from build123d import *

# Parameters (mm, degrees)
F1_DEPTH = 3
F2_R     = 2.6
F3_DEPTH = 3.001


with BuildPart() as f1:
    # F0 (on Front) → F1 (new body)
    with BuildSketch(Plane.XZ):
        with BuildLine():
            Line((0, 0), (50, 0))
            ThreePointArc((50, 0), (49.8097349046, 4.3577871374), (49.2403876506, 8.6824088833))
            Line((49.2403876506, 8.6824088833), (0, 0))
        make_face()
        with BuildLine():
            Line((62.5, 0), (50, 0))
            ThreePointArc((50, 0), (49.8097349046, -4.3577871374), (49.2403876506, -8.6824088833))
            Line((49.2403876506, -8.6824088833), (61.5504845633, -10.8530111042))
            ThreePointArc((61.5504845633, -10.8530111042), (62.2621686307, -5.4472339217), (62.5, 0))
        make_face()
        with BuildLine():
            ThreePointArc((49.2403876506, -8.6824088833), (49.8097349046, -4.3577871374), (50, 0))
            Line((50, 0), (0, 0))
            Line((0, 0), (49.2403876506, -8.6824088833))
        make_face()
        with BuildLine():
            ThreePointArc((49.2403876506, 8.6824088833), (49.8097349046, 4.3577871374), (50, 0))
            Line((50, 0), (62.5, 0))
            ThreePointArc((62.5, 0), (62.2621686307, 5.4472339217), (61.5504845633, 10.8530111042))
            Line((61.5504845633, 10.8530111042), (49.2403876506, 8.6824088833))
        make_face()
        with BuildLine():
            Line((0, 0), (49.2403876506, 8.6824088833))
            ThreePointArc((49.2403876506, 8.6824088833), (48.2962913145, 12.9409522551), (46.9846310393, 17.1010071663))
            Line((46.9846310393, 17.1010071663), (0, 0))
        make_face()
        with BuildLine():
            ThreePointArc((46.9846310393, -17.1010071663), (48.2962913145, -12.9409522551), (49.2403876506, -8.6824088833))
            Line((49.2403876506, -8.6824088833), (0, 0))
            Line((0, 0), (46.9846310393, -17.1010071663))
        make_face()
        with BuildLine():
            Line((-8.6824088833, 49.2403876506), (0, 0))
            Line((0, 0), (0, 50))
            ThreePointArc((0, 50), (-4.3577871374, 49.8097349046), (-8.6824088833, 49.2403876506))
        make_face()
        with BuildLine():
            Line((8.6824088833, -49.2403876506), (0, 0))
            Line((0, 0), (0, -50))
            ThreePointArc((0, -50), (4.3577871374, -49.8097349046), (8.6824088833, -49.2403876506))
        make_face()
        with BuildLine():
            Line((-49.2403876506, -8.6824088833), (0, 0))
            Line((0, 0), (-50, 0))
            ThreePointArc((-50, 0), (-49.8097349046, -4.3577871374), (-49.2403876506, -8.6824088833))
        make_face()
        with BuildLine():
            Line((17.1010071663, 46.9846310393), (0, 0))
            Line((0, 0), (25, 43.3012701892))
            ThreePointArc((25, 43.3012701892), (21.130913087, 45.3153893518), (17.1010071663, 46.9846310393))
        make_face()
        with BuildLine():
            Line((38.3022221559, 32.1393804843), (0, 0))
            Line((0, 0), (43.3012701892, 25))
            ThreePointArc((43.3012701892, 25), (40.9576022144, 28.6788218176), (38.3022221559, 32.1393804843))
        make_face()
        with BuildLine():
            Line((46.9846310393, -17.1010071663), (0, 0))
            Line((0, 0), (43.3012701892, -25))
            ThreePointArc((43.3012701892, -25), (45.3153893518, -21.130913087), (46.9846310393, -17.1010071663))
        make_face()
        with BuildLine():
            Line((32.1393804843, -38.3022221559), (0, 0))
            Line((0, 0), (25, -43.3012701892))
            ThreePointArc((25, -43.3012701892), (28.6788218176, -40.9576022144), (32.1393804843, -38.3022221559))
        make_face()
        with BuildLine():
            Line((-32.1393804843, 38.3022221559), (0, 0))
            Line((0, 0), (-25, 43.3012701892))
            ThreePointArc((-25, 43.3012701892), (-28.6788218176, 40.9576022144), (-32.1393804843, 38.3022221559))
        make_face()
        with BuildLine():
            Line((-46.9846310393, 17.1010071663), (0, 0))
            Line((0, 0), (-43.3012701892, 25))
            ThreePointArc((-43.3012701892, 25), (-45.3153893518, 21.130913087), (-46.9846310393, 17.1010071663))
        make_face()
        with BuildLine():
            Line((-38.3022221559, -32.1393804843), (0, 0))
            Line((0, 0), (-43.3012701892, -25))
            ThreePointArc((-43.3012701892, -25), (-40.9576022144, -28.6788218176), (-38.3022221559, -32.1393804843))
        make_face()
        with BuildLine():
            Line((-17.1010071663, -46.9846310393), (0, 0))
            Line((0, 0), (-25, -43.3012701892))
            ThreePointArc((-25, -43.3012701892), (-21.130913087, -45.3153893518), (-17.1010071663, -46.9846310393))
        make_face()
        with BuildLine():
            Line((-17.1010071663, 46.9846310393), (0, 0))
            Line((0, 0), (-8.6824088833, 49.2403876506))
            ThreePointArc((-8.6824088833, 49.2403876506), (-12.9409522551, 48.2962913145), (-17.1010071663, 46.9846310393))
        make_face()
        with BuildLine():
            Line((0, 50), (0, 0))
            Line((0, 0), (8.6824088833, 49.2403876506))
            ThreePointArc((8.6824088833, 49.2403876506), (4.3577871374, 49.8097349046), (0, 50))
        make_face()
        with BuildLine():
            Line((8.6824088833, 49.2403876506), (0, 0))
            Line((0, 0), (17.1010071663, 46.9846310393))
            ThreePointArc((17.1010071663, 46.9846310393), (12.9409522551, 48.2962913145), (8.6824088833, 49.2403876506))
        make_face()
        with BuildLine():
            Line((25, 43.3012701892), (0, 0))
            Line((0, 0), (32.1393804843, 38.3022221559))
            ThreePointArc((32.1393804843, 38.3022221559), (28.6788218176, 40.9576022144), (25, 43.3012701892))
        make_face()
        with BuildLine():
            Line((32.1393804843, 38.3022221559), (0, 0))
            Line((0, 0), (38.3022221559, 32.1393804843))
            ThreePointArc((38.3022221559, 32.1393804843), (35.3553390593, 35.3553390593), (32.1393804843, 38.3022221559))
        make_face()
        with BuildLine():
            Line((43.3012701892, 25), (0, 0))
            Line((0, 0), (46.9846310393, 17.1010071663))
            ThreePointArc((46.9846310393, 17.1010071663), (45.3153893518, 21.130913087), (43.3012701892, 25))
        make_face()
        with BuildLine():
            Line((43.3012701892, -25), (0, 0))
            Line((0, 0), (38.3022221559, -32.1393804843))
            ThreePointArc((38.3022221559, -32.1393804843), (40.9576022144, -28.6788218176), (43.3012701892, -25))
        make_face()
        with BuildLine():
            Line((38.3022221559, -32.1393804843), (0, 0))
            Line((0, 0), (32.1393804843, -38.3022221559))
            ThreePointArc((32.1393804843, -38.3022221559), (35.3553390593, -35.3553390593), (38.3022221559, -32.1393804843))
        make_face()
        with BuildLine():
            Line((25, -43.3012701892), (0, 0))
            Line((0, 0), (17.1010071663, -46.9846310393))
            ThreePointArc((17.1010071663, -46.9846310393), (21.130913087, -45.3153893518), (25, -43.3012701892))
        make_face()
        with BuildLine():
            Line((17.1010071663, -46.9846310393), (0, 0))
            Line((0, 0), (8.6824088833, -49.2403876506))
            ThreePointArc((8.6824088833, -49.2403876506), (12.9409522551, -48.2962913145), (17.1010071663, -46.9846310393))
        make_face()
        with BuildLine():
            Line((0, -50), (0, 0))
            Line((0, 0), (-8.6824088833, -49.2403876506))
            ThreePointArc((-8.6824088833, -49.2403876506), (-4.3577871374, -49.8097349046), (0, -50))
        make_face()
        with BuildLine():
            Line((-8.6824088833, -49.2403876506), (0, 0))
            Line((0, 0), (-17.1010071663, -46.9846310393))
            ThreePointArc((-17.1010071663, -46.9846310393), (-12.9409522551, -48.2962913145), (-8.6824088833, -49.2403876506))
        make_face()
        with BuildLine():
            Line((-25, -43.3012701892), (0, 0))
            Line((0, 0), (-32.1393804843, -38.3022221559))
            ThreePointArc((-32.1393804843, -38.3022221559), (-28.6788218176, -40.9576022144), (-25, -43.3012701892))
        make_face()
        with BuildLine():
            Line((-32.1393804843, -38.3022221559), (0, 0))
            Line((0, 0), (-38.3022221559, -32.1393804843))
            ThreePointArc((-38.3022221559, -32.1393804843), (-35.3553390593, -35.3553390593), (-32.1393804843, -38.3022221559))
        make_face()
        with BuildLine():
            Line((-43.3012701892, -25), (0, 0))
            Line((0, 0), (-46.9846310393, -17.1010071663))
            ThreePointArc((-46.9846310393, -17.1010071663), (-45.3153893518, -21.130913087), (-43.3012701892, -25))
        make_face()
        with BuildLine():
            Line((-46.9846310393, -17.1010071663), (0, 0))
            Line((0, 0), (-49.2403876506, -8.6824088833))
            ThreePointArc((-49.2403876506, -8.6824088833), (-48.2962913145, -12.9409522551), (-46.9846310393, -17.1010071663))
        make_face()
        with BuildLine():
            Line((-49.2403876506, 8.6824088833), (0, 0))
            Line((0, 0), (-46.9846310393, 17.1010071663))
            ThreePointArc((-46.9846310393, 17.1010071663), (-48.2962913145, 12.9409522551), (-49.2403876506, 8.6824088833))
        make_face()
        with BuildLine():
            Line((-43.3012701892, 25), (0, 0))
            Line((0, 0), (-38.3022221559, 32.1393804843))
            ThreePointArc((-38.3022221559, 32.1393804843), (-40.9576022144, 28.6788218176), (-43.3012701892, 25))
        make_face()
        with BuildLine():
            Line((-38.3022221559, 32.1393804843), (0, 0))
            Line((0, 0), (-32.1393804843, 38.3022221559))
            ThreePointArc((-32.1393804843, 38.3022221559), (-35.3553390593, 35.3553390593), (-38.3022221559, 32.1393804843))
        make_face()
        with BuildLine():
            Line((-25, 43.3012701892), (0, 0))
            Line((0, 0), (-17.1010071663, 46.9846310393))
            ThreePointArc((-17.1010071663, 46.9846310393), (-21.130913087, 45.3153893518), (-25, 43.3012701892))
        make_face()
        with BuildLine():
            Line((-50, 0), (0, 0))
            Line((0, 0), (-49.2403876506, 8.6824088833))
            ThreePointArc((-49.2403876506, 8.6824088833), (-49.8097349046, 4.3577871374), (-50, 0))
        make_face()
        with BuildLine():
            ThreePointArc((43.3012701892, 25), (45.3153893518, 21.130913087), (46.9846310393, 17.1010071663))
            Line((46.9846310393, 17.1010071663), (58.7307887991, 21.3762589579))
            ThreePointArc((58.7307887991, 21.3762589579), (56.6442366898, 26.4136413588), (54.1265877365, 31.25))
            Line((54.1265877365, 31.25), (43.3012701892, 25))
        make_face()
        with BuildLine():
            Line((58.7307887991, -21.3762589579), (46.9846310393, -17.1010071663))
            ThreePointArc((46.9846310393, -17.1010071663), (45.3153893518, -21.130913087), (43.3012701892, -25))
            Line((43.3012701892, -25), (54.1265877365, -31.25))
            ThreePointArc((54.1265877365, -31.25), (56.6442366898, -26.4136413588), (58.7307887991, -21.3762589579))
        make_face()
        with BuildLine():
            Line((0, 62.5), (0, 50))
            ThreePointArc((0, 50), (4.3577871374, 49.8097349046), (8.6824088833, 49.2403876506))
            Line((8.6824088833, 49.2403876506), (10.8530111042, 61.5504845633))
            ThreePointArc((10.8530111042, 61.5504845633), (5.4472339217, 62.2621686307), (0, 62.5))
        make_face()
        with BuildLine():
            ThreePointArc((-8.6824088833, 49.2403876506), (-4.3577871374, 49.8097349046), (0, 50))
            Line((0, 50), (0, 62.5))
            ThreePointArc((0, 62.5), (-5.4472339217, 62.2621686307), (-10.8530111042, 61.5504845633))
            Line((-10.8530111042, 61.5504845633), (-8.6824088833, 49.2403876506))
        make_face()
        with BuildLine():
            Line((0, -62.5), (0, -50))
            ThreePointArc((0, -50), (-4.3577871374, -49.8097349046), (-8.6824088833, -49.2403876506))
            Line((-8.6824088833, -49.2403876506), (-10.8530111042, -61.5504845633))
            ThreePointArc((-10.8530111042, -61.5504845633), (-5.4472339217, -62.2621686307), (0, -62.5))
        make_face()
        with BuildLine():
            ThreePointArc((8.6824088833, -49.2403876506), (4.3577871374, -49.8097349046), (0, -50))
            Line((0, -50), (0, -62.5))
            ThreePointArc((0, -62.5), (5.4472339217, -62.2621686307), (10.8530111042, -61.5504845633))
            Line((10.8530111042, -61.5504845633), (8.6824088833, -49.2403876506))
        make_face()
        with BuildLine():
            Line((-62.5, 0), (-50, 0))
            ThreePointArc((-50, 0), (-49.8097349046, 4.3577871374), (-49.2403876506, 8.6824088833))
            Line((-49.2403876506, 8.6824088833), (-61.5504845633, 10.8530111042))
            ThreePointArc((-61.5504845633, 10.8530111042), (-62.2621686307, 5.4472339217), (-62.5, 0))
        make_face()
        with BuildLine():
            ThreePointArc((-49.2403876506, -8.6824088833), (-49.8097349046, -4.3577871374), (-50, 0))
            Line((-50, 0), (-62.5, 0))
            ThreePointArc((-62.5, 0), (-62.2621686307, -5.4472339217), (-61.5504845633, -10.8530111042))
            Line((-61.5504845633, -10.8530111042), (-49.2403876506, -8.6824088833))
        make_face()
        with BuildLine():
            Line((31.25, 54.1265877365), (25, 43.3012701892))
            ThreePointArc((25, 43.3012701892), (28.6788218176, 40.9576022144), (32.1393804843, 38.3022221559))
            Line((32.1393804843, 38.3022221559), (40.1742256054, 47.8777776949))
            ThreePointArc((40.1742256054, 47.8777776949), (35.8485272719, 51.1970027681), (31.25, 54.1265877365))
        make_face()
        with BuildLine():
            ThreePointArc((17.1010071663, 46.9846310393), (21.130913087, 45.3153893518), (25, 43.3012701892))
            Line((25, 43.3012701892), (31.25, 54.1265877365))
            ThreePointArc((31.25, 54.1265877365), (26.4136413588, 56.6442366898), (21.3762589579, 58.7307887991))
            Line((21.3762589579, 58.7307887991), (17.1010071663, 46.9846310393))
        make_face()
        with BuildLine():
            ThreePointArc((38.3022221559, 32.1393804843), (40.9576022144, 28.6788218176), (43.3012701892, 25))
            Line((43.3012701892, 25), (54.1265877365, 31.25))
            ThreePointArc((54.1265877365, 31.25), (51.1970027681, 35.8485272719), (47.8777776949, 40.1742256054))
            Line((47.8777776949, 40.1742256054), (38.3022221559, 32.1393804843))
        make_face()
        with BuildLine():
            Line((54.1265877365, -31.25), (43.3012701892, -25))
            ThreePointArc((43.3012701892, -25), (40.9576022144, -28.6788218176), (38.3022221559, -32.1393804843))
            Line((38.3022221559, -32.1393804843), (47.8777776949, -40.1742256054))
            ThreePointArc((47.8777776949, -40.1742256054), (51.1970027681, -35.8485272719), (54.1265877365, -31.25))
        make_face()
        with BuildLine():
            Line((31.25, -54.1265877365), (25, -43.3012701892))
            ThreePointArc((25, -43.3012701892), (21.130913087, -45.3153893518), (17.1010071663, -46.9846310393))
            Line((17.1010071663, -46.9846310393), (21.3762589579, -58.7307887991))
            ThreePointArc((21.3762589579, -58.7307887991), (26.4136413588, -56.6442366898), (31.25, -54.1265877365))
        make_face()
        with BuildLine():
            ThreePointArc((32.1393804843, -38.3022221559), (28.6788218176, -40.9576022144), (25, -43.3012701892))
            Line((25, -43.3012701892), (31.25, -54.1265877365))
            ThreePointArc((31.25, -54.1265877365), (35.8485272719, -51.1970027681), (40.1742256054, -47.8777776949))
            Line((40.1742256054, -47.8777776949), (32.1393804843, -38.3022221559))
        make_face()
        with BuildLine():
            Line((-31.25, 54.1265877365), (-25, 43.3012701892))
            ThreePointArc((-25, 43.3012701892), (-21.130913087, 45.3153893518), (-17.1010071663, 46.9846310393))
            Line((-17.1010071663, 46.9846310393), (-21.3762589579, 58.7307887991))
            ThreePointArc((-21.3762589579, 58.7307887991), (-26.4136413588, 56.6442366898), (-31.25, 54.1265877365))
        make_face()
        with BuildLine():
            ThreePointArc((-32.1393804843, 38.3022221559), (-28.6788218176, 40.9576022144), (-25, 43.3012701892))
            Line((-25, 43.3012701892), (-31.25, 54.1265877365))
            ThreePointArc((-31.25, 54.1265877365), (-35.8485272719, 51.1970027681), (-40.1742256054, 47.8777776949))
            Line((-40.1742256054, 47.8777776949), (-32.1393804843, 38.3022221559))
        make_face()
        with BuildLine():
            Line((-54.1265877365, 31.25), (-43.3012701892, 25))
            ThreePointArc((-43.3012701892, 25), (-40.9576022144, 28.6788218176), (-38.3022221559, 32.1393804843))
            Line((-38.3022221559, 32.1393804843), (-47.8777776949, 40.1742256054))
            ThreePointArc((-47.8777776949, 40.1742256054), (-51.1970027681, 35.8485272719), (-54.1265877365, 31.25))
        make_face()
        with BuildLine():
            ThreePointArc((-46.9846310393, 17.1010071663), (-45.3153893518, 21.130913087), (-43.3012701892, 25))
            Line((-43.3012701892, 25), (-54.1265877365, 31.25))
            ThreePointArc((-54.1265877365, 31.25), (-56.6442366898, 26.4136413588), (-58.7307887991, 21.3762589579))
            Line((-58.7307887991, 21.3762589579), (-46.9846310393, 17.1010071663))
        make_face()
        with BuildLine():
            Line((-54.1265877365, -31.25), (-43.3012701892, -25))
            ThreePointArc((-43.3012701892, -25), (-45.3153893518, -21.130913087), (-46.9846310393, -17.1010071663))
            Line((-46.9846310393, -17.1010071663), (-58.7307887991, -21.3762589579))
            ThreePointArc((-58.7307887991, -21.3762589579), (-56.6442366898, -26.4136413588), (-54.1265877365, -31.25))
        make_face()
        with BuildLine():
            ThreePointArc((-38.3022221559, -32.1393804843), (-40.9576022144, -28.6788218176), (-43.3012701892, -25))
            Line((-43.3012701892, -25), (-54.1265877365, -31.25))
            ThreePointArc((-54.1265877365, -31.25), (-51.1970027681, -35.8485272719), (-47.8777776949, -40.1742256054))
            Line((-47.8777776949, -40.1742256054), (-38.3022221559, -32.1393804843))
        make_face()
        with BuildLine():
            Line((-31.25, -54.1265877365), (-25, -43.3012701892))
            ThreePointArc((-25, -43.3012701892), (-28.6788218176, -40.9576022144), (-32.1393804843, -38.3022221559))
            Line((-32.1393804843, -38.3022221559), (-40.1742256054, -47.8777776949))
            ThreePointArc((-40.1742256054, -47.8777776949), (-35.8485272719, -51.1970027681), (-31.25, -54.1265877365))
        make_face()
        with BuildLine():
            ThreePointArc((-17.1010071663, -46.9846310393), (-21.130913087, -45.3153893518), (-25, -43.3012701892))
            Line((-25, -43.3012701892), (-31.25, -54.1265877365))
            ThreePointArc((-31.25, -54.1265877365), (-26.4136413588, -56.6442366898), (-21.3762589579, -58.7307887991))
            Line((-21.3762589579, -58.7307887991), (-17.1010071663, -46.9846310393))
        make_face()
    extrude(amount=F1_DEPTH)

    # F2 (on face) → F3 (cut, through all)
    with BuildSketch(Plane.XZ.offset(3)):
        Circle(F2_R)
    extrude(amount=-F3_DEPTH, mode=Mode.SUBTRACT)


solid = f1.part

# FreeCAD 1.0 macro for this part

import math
import FreeCAD as App
import Part
import Sketcher
from FreeCAD import Vector
Q = App.Units.Quantity

doc = App.newDocument("Part")
params = doc.addObject("Spreadsheet::Sheet", "Params")
for row, (alias, value) in enumerate([
    ("sketch1_radius", "50 mm"),
    ("sketch1_radius2", "62.5 mm"),
    ("pad1_length", "3 mm"),
    ("sketch2_diameter", "5.2 mm"),
], start=1):
    params.set(f"A{row}", alias)
    params.set(f"B{row}", "=" + value)
    params.setAlias(f"B{row}", alias)

body = doc.addObject("PartDesign::Body", "Body")

# Sketch on XZ plane
sketch1 = body.newObject("Sketcher::SketchObject", "Sketch")
sketch1.AttachmentSupport = (doc.getObject("XZ_Plane"), [""])
sketch1.MapMode = "FlatFace"
sketch1.addGeometry(Part.LineSegment(Vector(49, -9, 0), Vector(62, -11, 0)), False)
sketch1.addGeometry(Part.ArcOfCircle(Part.Circle(Vector(0, 0, 0), Vector(0, 0, 1), 63), math.radians(-10), math.radians(0)), False)
sketch1.addGeometry(Part.ArcOfCircle(Part.Circle(Vector(0, 0, 0), Vector(0, 0, 1), 63), math.radians(0), math.radians(10)), False)
sketch1.addGeometry(Part.LineSegment(Vector(62, 11, 0), Vector(49, 9, 0)), False)
sketch1.addGeometry(Part.ArcOfCircle(Part.Circle(Vector(0, 0, 0), Vector(0, 0, 1), 50), math.radians(10), math.radians(20)), False)
sketch1.addGeometry(Part.LineSegment(Vector(47, 17, 0), Vector(59, 21, 0)), False)
sketch1.addGeometry(Part.ArcOfCircle(Part.Circle(Vector(0, 0, 0), Vector(0, 0, 1), 62), math.radians(20), math.radians(30)), False)
sketch1.addGeometry(Part.ArcOfCircle(Part.Circle(Vector(0, 0, 0), Vector(0, 0, 1), 62), math.radians(30), math.radians(40)), False)
sketch1.addGeometry(Part.LineSegment(Vector(48, 40, 0), Vector(38, 32, 0)), False)
sketch1.addGeometry(Part.ArcOfCircle(Part.Circle(Vector(0, 0, 0), Vector(0, 0, 1), 50), math.radians(40), math.radians(50)), False)
sketch1.addGeometry(Part.LineSegment(Vector(32, 38, 0), Vector(40, 48, 0)), False)
sketch1.addGeometry(Part.ArcOfCircle(Part.Circle(Vector(0, 0, 0), Vector(0, 0, 1), 62), math.radians(50), math.radians(60)), False)
sketch1.addGeometry(Part.ArcOfCircle(Part.Circle(Vector(0, 0, 0), Vector(0, 0, 1), 62), math.radians(60), math.radians(70)), False)
sketch1.addGeometry(Part.LineSegment(Vector(21, 59, 0), Vector(17, 47, 0)), False)
sketch1.addGeometry(Part.ArcOfCircle(Part.Circle(Vector(0, 0, 0), Vector(0, 0, 1), 50), math.radians(70), math.radians(80)), False)
sketch1.addGeometry(Part.LineSegment(Vector(9, 49, 0), Vector(11, 62, 0)), False)
sketch1.addGeometry(Part.ArcOfCircle(Part.Circle(Vector(0, 0, 0), Vector(0, 0, 1), 63), math.radians(80), math.radians(90)), False)
sketch1.addGeometry(Part.ArcOfCircle(Part.Circle(Vector(0, 0, 0), Vector(0, 0, 1), 63), math.radians(90), math.radians(100)), False)
sketch1.addGeometry(Part.LineSegment(Vector(-11, 62, 0), Vector(-9, 49, 0)), False)
sketch1.addGeometry(Part.ArcOfCircle(Part.Circle(Vector(0, 0, 0), Vector(0, 0, 1), 50), math.radians(100), math.radians(110)), False)
sketch1.addGeometry(Part.LineSegment(Vector(-17, 47, 0), Vector(-21, 59, 0)), False)
sketch1.addGeometry(Part.ArcOfCircle(Part.Circle(Vector(0, 0, 0), Vector(0, 0, 1), 62), math.radians(110), math.radians(120)), False)
sketch1.addGeometry(Part.ArcOfCircle(Part.Circle(Vector(0, 0, 0), Vector(0, 0, 1), 62), math.radians(120), math.radians(130)), False)
sketch1.addGeometry(Part.LineSegment(Vector(-40, 48, 0), Vector(-32, 38, 0)), False)
sketch1.addGeometry(Part.ArcOfCircle(Part.Circle(Vector(0, 0, 0), Vector(0, 0, 1), 50), math.radians(130), math.radians(140)), False)
sketch1.addGeometry(Part.LineSegment(Vector(-38, 32, 0), Vector(-48, 40, 0)), False)
sketch1.addGeometry(Part.ArcOfCircle(Part.Circle(Vector(0, 0, 0), Vector(0, 0, 1), 62), math.radians(140), math.radians(150)), False)
sketch1.addGeometry(Part.ArcOfCircle(Part.Circle(Vector(0, 0, 0), Vector(0, 0, 1), 62), math.radians(150), math.radians(160)), False)
sketch1.addGeometry(Part.LineSegment(Vector(-59, 21, 0), Vector(-47, 17, 0)), False)
sketch1.addGeometry(Part.ArcOfCircle(Part.Circle(Vector(0, 0, 0), Vector(0, 0, 1), 50), math.radians(160), math.radians(170)), False)
sketch1.addGeometry(Part.LineSegment(Vector(-49, 9, 0), Vector(-62, 11, 0)), False)
sketch1.addGeometry(Part.ArcOfCircle(Part.Circle(Vector(0, 0, 0), Vector(0, 0, 1), 63), math.radians(170), math.radians(180)), False)
sketch1.addGeometry(Part.ArcOfCircle(Part.Circle(Vector(0, 0, 0), Vector(0, 0, 1), 63), math.radians(-180), math.radians(-170)), False)
sketch1.addGeometry(Part.LineSegment(Vector(-62, -11, 0), Vector(-49, -9, 0)), False)
sketch1.addGeometry(Part.ArcOfCircle(Part.Circle(Vector(0, 0, 0), Vector(0, 0, 1), 50), math.radians(-170), math.radians(-160)), False)
sketch1.addGeometry(Part.LineSegment(Vector(-47, -17, 0), Vector(-59, -21, 0)), False)
sketch1.addGeometry(Part.ArcOfCircle(Part.Circle(Vector(0, 0, 0), Vector(0, 0, 1), 62), math.radians(-160), math.radians(-150)), False)
sketch1.addGeometry(Part.ArcOfCircle(Part.Circle(Vector(0, 0, 0), Vector(0, 0, 1), 62), math.radians(-150), math.radians(-140)), False)
sketch1.addGeometry(Part.LineSegment(Vector(-48, -40, 0), Vector(-38, -32, 0)), False)
sketch1.addGeometry(Part.ArcOfCircle(Part.Circle(Vector(0, 0, 0), Vector(0, 0, 1), 50), math.radians(-140), math.radians(-130)), False)
sketch1.addGeometry(Part.LineSegment(Vector(-32, -38, 0), Vector(-40, -48, 0)), False)
sketch1.addGeometry(Part.ArcOfCircle(Part.Circle(Vector(0, 0, 0), Vector(0, 0, 1), 62), math.radians(-130), math.radians(-120)), False)
sketch1.addGeometry(Part.ArcOfCircle(Part.Circle(Vector(0, 0, 0), Vector(0, 0, 1), 62), math.radians(-120), math.radians(-110)), False)
sketch1.addGeometry(Part.LineSegment(Vector(-21, -59, 0), Vector(-17, -47, 0)), False)
sketch1.addGeometry(Part.ArcOfCircle(Part.Circle(Vector(0, 0, 0), Vector(0, 0, 1), 50), math.radians(-110), math.radians(-100)), False)
sketch1.addGeometry(Part.LineSegment(Vector(-9, -49, 0), Vector(-11, -62, 0)), False)
sketch1.addGeometry(Part.ArcOfCircle(Part.Circle(Vector(0, 0, 0), Vector(0, 0, 1), 63), math.radians(-100), math.radians(-90)), False)
sketch1.addGeometry(Part.ArcOfCircle(Part.Circle(Vector(0, 0, 0), Vector(0, 0, 1), 63), math.radians(-90), math.radians(-80)), False)
sketch1.addGeometry(Part.LineSegment(Vector(11, -62, 0), Vector(9, -49, 0)), False)
sketch1.addGeometry(Part.ArcOfCircle(Part.Circle(Vector(0, 0, 0), Vector(0, 0, 1), 50), math.radians(-80), math.radians(-70)), False)
sketch1.addGeometry(Part.LineSegment(Vector(17, -47, 0), Vector(21, -59, 0)), False)
sketch1.addGeometry(Part.ArcOfCircle(Part.Circle(Vector(0, 0, 0), Vector(0, 0, 1), 62), math.radians(-70), math.radians(-60)), False)
sketch1.addGeometry(Part.ArcOfCircle(Part.Circle(Vector(0, 0, 0), Vector(0, 0, 1), 62), math.radians(-60), math.radians(-50)), False)
sketch1.addGeometry(Part.LineSegment(Vector(40, -48, 0), Vector(32, -38, 0)), False)
sketch1.addGeometry(Part.ArcOfCircle(Part.Circle(Vector(0, 0, 0), Vector(0, 0, 1), 50), math.radians(-50), math.radians(-40)), False)
sketch1.addGeometry(Part.LineSegment(Vector(38, -32, 0), Vector(48, -40, 0)), False)
sketch1.addGeometry(Part.ArcOfCircle(Part.Circle(Vector(0, 0, 0), Vector(0, 0, 1), 62), math.radians(-40), math.radians(-30)), False)
sketch1.addGeometry(Part.ArcOfCircle(Part.Circle(Vector(0, 0, 0), Vector(0, 0, 1), 62), math.radians(-30), math.radians(-20)), False)
sketch1.addGeometry(Part.LineSegment(Vector(59, -21, 0), Vector(47, -17, 0)), False)
sketch1.addGeometry(Part.ArcOfCircle(Part.Circle(Vector(0, 0, 0), Vector(0, 0, 1), 50), math.radians(-20), math.radians(-10)), False)
sketch1.addConstraint(Sketcher.Constraint("Coincident", 0, 2, 1, 1))
sketch1.addConstraint(Sketcher.Constraint("Tangent", 1, 2, 2, 1))
sketch1.addConstraint(Sketcher.Constraint("Coincident", 2, 2, 3, 1))
sketch1.addConstraint(Sketcher.Constraint("Coincident", 3, 2, 4, 1))
sketch1.addConstraint(Sketcher.Constraint("Coincident", 4, 2, 5, 1))
sketch1.addConstraint(Sketcher.Constraint("Coincident", 5, 2, 6, 1))
sketch1.addConstraint(Sketcher.Constraint("Tangent", 6, 2, 7, 1))
sketch1.addConstraint(Sketcher.Constraint("Coincident", 7, 2, 8, 1))
sketch1.addConstraint(Sketcher.Constraint("Coincident", 8, 2, 9, 1))
sketch1.addConstraint(Sketcher.Constraint("Coincident", 9, 2, 10, 1))
sketch1.addConstraint(Sketcher.Constraint("Coincident", 10, 2, 11, 1))
sketch1.addConstraint(Sketcher.Constraint("Tangent", 11, 2, 12, 1))
sketch1.addConstraint(Sketcher.Constraint("Coincident", 12, 2, 13, 1))
sketch1.addConstraint(Sketcher.Constraint("Coincident", 13, 2, 14, 1))
sketch1.addConstraint(Sketcher.Constraint("Coincident", 14, 2, 15, 1))
sketch1.addConstraint(Sketcher.Constraint("Coincident", 15, 2, 16, 1))
sketch1.addConstraint(Sketcher.Constraint("Tangent", 16, 2, 17, 1))
sketch1.addConstraint(Sketcher.Constraint("Coincident", 17, 2, 18, 1))
sketch1.addConstraint(Sketcher.Constraint("Coincident", 18, 2, 19, 1))
sketch1.addConstraint(Sketcher.Constraint("Coincident", 19, 2, 20, 1))
sketch1.addConstraint(Sketcher.Constraint("Coincident", 20, 2, 21, 1))
sketch1.addConstraint(Sketcher.Constraint("Tangent", 21, 2, 22, 1))
sketch1.addConstraint(Sketcher.Constraint("Coincident", 22, 2, 23, 1))
sketch1.addConstraint(Sketcher.Constraint("Coincident", 23, 2, 24, 1))
sketch1.addConstraint(Sketcher.Constraint("Coincident", 24, 2, 25, 1))
sketch1.addConstraint(Sketcher.Constraint("Coincident", 25, 2, 26, 1))
sketch1.addConstraint(Sketcher.Constraint("Tangent", 26, 2, 27, 1))
sketch1.addConstraint(Sketcher.Constraint("Coincident", 27, 2, 28, 1))
sketch1.addConstraint(Sketcher.Constraint("Coincident", 28, 2, 29, 1))
sketch1.addConstraint(Sketcher.Constraint("Coincident", 29, 2, 30, 1))
sketch1.addConstraint(Sketcher.Constraint("Coincident", 30, 2, 31, 1))
sketch1.addConstraint(Sketcher.Constraint("Tangent", 31, 2, 32, 1))
sketch1.addConstraint(Sketcher.Constraint("Coincident", 32, 2, 33, 1))
sketch1.addConstraint(Sketcher.Constraint("Coincident", 33, 2, 34, 1))
sketch1.addConstraint(Sketcher.Constraint("Coincident", 34, 2, 35, 1))
sketch1.addConstraint(Sketcher.Constraint("Coincident", 35, 2, 36, 1))
sketch1.addConstraint(Sketcher.Constraint("Tangent", 36, 2, 37, 1))
sketch1.addConstraint(Sketcher.Constraint("Coincident", 37, 2, 38, 1))
sketch1.addConstraint(Sketcher.Constraint("Coincident", 38, 2, 39, 1))
sketch1.addConstraint(Sketcher.Constraint("Coincident", 39, 2, 40, 1))
sketch1.addConstraint(Sketcher.Constraint("Coincident", 40, 2, 41, 1))
sketch1.addConstraint(Sketcher.Constraint("Tangent", 41, 2, 42, 1))
sketch1.addConstraint(Sketcher.Constraint("Coincident", 42, 2, 43, 1))
sketch1.addConstraint(Sketcher.Constraint("Coincident", 43, 2, 44, 1))
sketch1.addConstraint(Sketcher.Constraint("Coincident", 44, 2, 45, 1))
sketch1.addConstraint(Sketcher.Constraint("Coincident", 45, 2, 46, 1))
sketch1.addConstraint(Sketcher.Constraint("Tangent", 46, 2, 47, 1))
sketch1.addConstraint(Sketcher.Constraint("Coincident", 47, 2, 48, 1))
sketch1.addConstraint(Sketcher.Constraint("Coincident", 48, 2, 49, 1))
sketch1.addConstraint(Sketcher.Constraint("Coincident", 49, 2, 50, 1))
sketch1.addConstraint(Sketcher.Constraint("Coincident", 50, 2, 51, 1))
sketch1.addConstraint(Sketcher.Constraint("Tangent", 51, 2, 52, 1))
sketch1.addConstraint(Sketcher.Constraint("Coincident", 52, 2, 53, 1))
sketch1.addConstraint(Sketcher.Constraint("Coincident", 53, 2, 54, 1))
sketch1.addConstraint(Sketcher.Constraint("Coincident", 54, 2, 55, 1))
sketch1.addConstraint(Sketcher.Constraint("Coincident", 55, 2, 56, 1))
sketch1.addConstraint(Sketcher.Constraint("Tangent", 56, 2, 57, 1))
sketch1.addConstraint(Sketcher.Constraint("Coincident", 57, 2, 58, 1))
sketch1.addConstraint(Sketcher.Constraint("Coincident", 58, 2, 59, 1))
sketch1.addConstraint(Sketcher.Constraint("Coincident", 59, 2, 0, 1))
sketch1.addConstraint(Sketcher.Constraint("Coincident", 1, 3, -1, 1))
sketch1.addConstraint(Sketcher.Constraint("Coincident", 4, 3, -1, 1))
sketch1.addConstraint(Sketcher.Constraint("Coincident", 6, 3, -1, 1))
sketch1.addConstraint(Sketcher.Constraint("Coincident", 9, 3, -1, 1))
sketch1.addConstraint(Sketcher.Constraint("Coincident", 11, 3, -1, 1))
sketch1.addConstraint(Sketcher.Constraint("Coincident", 14, 3, -1, 1))
sketch1.addConstraint(Sketcher.Constraint("Coincident", 16, 3, -1, 1))
sketch1.addConstraint(Sketcher.Constraint("Coincident", 19, 3, -1, 1))
sketch1.addConstraint(Sketcher.Constraint("Coincident", 21, 3, -1, 1))
sketch1.addConstraint(Sketcher.Constraint("Coincident", 24, 3, -1, 1))
sketch1.addConstraint(Sketcher.Constraint("Coincident", 26, 3, -1, 1))
sketch1.addConstraint(Sketcher.Constraint("Coincident", 29, 3, -1, 1))
sketch1.addConstraint(Sketcher.Constraint("Coincident", 31, 3, -1, 1))
sketch1.addConstraint(Sketcher.Constraint("Coincident", 34, 3, -1, 1))
sketch1.addConstraint(Sketcher.Constraint("Coincident", 36, 3, -1, 1))
sketch1.addConstraint(Sketcher.Constraint("Coincident", 39, 3, -1, 1))
sketch1.addConstraint(Sketcher.Constraint("Coincident", 41, 3, -1, 1))
sketch1.addConstraint(Sketcher.Constraint("Coincident", 44, 3, -1, 1))
sketch1.addConstraint(Sketcher.Constraint("Coincident", 46, 3, -1, 1))
sketch1.addConstraint(Sketcher.Constraint("Coincident", 49, 3, -1, 1))
sketch1.addConstraint(Sketcher.Constraint("Coincident", 51, 3, -1, 1))
sketch1.addConstraint(Sketcher.Constraint("Coincident", 54, 3, -1, 1))
sketch1.addConstraint(Sketcher.Constraint("Coincident", 56, 3, -1, 1))
sketch1.addConstraint(Sketcher.Constraint("Coincident", 59, 3, -1, 1))
sketch1.addConstraint(Sketcher.Constraint("Equal", 1, 2))
sketch1.addConstraint(Sketcher.Constraint("Equal", 2, 6))
sketch1.addConstraint(Sketcher.Constraint("Equal", 6, 7))
sketch1.addConstraint(Sketcher.Constraint("Equal", 4, 9))
sketch1.addConstraint(Sketcher.Constraint("Equal", 7, 11))
sketch1.addConstraint(Sketcher.Constraint("Equal", 11, 12))
sketch1.addConstraint(Sketcher.Constraint("Equal", 9, 14))
sketch1.addConstraint(Sketcher.Constraint("Equal", 12, 16))
sketch1.addConstraint(Sketcher.Constraint("Equal", 16, 17))
sketch1.addConstraint(Sketcher.Constraint("Equal", 14, 19))
sketch1.addConstraint(Sketcher.Constraint("Equal", 17, 21))
sketch1.addConstraint(Sketcher.Constraint("Equal", 21, 22))
sketch1.addConstraint(Sketcher.Constraint("Equal", 19, 24))
sketch1.addConstraint(Sketcher.Constraint("Equal", 22, 26))
sketch1.addConstraint(Sketcher.Constraint("Equal", 26, 27))
sketch1.addConstraint(Sketcher.Constraint("Equal", 24, 29))
sketch1.addConstraint(Sketcher.Constraint("Equal", 27, 31))
sketch1.addConstraint(Sketcher.Constraint("Equal", 31, 32))
sketch1.addConstraint(Sketcher.Constraint("Equal", 29, 34))
sketch1.addConstraint(Sketcher.Constraint("Equal", 32, 36))
sketch1.addConstraint(Sketcher.Constraint("Equal", 36, 37))
sketch1.addConstraint(Sketcher.Constraint("Equal", 34, 39))
sketch1.addConstraint(Sketcher.Constraint("Equal", 37, 41))
sketch1.addConstraint(Sketcher.Constraint("Equal", 41, 42))
sketch1.addConstraint(Sketcher.Constraint("Equal", 39, 44))
sketch1.addConstraint(Sketcher.Constraint("Equal", 42, 46))
sketch1.addConstraint(Sketcher.Constraint("Equal", 46, 47))
sketch1.addConstraint(Sketcher.Constraint("Equal", 44, 49))
sketch1.addConstraint(Sketcher.Constraint("Equal", 47, 51))
sketch1.addConstraint(Sketcher.Constraint("Equal", 51, 52))
sketch1.addConstraint(Sketcher.Constraint("Equal", 49, 54))
sketch1.addConstraint(Sketcher.Constraint("Equal", 52, 56))
sketch1.addConstraint(Sketcher.Constraint("Equal", 56, 57))
sketch1.addConstraint(Sketcher.Constraint("Equal", 54, 59))
sketch1.addConstraint(Sketcher.Constraint("PointOnObject", 1, 2, -1))
sketch1.addConstraint(Sketcher.Constraint("PointOnObject", 16, 2, -2))
sketch1.addConstraint(Sketcher.Constraint("PointOnObject", 31, 2, -1))
sketch1.addConstraint(Sketcher.Constraint("PointOnObject", 46, 2, -2))
sketch1.addConstraint(Sketcher.Constraint("Perpendicular", 0, 15))
sketch1.addConstraint(Sketcher.Constraint("Perpendicular", 3, 18))
sketch1.addConstraint(Sketcher.Constraint("Perpendicular", 5, 20))
sketch1.addConstraint(Sketcher.Constraint("Perpendicular", 8, 23))
sketch1.addConstraint(Sketcher.Constraint("Perpendicular", 10, 25))
sketch1.addConstraint(Sketcher.Constraint("Perpendicular", 13, 28))
sketch1.addConstraint(Sketcher.Constraint("Perpendicular", 15, 30))
sketch1.addConstraint(Sketcher.Constraint("Perpendicular", 18, 33))
sketch1.addConstraint(Sketcher.Constraint("Perpendicular", 20, 35))
sketch1.addConstraint(Sketcher.Constraint("Perpendicular", 23, 38))
sketch1.addConstraint(Sketcher.Constraint("Perpendicular", 25, 40))
sketch1.addConstraint(Sketcher.Constraint("Perpendicular", 28, 43))
sketch1.addConstraint(Sketcher.Constraint("Perpendicular", 30, 45))
sketch1.addConstraint(Sketcher.Constraint("Perpendicular", 33, 48))
sketch1.addConstraint(Sketcher.Constraint("Perpendicular", 35, 50))
sketch1.addConstraint(Sketcher.Constraint("Perpendicular", 38, 53))
sketch1.addConstraint(Sketcher.Constraint("Perpendicular", 40, 55))
sketch1.addConstraint(Sketcher.Constraint("Perpendicular", 43, 58))
sketch1.addConstraint(Sketcher.Constraint("Horizontal", 15, 2, 17, 2))
sketch1.addConstraint(Sketcher.Constraint("Horizontal", 14, 2, 18, 2))
sketch1.addConstraint(Sketcher.Constraint("Horizontal", 13, 2, 19, 2))
sketch1.addConstraint(Sketcher.Constraint("Horizontal", 12, 2, 20, 2))
sketch1.addConstraint(Sketcher.Constraint("Horizontal", 11, 2, 21, 2))
sketch1.addConstraint(Sketcher.Constraint("Horizontal", 10, 2, 22, 2))
sketch1.addConstraint(Sketcher.Constraint("Horizontal", 9, 2, 23, 2))
sketch1.addConstraint(Sketcher.Constraint("Horizontal", 8, 2, 24, 2))
sketch1.addConstraint(Sketcher.Constraint("Horizontal", 6, 2, 26, 2))
sketch1.addConstraint(Sketcher.Constraint("Horizontal", 5, 2, 27, 2))
sketch1.addConstraint(Sketcher.Constraint("Horizontal", 3, 2, 29, 2))
sketch1.addConstraint(Sketcher.Constraint("Horizontal", 0, 2, 32, 2))
sketch1.addConstraint(Sketcher.Constraint("Horizontal", 45, 2, 47, 2))
sketch1.addConstraint(Sketcher.Constraint("Horizontal", 43, 2, 49, 2))
sketch1.addConstraint(Sketcher.Constraint("Horizontal", 41, 2, 51, 2))
sketch1.addConstraint(Sketcher.Constraint("Horizontal", 40, 2, 52, 2))
sketch1.addConstraint(Sketcher.Constraint("Horizontal", 38, 2, 54, 2))
sketch1.addConstraint(Sketcher.Constraint("Horizontal", 36, 2, 56, 2))
sketch1.addConstraint(Sketcher.Constraint("Horizontal", 35, 2, 57, 2))
sketch1.addConstraint(Sketcher.Constraint("Vertical", 0, 2, 2, 2))
sketch1.addConstraint(Sketcher.Constraint("Vertical", 28, 2, 34, 2))
sketch1.addConstraint(Sketcher.Constraint("Vertical", 26, 2, 36, 2))
sketch1.addConstraint(Sketcher.Constraint("Vertical", 25, 2, 37, 2))
sketch1.addConstraint(Sketcher.Constraint("Vertical", 23, 2, 39, 2))
sketch1.addConstraint(Sketcher.Constraint("Vertical", 21, 2, 41, 2))
sketch1.addConstraint(Sketcher.Constraint("Vertical", 20, 2, 42, 2))
sketch1.addConstraint(Sketcher.Constraint("Vertical", 18, 2, 44, 2))
sketch1.addConstraint(Sketcher.Constraint("Radius", 4, 50.0))
sketch1.addConstraint(Sketcher.Constraint("Radius", 1, 62.5))
sketch1.addConstraint(Sketcher.Constraint("Angle", 0, Q("-10 deg")))
sketch1.addConstraint(Sketcher.Constraint("Angle", 5, Q("20 deg")))
sketch1.addConstraint(Sketcher.Constraint("Angle", 8, Q("-140 deg")))
sketch1.addConstraint(Sketcher.Constraint("DistanceY", -1, 1, 6, 2, 31.25))
sketch1.addConstraint(Sketcher.Constraint("DistanceX", -1, 1, 11, 2, 31.25))
sketch1.addConstraint(Sketcher.Constraint("DistanceY", 0, 2, -1, 1, 10.853011))
sketch1.addConstraint(Sketcher.Constraint("DistanceX", -1, 1, 4, 2, 46.984631))
sketch1.addConstraint(Sketcher.Constraint("DistanceY", -1, 1, 8, 2, 32.13938))
sketch1.addConstraint(Sketcher.Constraint("DistanceX", -1, 1, 9, 2, 32.13938))
sketch1.addConstraint(Sketcher.Constraint("DistanceX", -1, 1, 12, 2, 21.376259))
sketch1.addConstraint(Sketcher.Constraint("DistanceX", -1, 1, 14, 2, 8.682409))
sketch1.setExpression("Constraints[167]", "Params.sketch1_radius")
sketch1.setExpression("Constraints[168]", "Params.sketch1_radius2")
pad1 = body.newObject("PartDesign::Pad", "Pad")
pad1.Profile = sketch1
pad1.setExpression("Length", "Params.pad1_length")

# Sketch on XZ plane
sketch2 = body.newObject("Sketcher::SketchObject", "Sketch001")
sketch2.AttachmentSupport = (doc.getObject("XZ_Plane"), [""])
sketch2.MapMode = "FlatFace"
sketch2.AttachmentOffset = App.Placement(Vector(0, 0, 3), App.Rotation())
sketch2.addGeometry(Part.Circle(Vector(0, 0, 0), Vector(0, 0, 1), 2.6), False)
sketch2.addConstraint(Sketcher.Constraint("Coincident", 0, 3, -1, 1))
sketch2.addConstraint(Sketcher.Constraint("Diameter", 0, 5.2))
sketch2.setExpression("Constraints[1]", "Params.sketch2_diameter")
pocket1 = body.newObject("PartDesign::Pocket", "Pocket")
pocket1.Profile = sketch2
pocket1.Type = "ThroughAll"

doc.recompute()
